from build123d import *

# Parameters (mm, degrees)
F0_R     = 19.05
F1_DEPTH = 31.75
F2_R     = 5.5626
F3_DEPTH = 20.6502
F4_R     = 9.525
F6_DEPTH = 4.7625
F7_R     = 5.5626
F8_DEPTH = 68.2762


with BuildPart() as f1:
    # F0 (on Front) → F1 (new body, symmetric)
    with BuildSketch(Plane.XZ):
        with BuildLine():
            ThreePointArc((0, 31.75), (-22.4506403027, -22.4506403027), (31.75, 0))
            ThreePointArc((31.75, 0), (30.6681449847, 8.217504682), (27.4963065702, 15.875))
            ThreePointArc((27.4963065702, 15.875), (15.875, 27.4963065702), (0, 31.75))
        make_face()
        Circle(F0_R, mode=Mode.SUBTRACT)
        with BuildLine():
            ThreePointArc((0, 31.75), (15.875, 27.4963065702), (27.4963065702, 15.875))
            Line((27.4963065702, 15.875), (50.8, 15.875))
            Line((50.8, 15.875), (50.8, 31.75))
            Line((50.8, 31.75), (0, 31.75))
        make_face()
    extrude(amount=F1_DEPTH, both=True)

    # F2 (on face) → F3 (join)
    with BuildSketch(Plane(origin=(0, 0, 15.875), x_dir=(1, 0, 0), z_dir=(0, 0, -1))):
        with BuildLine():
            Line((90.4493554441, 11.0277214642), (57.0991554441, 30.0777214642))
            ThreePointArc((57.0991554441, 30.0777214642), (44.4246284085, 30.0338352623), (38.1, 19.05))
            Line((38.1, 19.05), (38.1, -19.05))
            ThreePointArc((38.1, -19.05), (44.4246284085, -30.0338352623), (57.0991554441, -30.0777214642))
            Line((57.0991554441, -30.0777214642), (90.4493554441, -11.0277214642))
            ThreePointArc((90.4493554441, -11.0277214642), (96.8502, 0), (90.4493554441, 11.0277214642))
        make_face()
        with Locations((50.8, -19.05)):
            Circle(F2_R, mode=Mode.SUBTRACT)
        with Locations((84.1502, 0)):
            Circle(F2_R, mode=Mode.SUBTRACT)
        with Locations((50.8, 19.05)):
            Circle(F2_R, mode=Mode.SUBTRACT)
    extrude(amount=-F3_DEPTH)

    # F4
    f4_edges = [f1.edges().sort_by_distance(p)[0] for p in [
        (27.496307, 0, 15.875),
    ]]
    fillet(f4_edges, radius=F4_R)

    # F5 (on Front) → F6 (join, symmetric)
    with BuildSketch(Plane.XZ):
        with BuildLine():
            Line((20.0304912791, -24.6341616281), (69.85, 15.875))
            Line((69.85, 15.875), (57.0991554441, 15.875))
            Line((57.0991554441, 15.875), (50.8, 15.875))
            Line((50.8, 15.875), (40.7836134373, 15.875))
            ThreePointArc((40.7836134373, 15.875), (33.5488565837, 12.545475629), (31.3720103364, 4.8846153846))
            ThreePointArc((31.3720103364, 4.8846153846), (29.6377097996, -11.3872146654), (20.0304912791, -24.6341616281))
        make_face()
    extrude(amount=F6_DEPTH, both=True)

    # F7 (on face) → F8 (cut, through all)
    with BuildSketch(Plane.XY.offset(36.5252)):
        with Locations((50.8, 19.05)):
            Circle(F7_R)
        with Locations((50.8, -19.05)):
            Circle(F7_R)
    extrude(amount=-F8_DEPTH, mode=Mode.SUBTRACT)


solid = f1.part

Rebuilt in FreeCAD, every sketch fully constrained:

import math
import FreeCAD as App
import Part
import Sketcher

V = App.Vector
Q = App.Units.Quantity


def edges_at(feature, points):
    """Names of the edges that pass closest to the given points."""
    edges = feature.Shape.Edges
    near = lambda p: min(range(len(edges)), key=lambda i: edges[i].distToShape(Part.Vertex(*p))[0])
    return sorted({f"Edge{near(p) + 1}" for p in points})

doc = App.newDocument("Part")
body = doc.addObject("PartDesign::Body", "Body")

# Sketch on XZ plane
sketch1 = body.newObject("Sketcher::SketchObject", "Sketch")
sketch1.AttachmentSupport = (doc.getObject("XZ_Plane"), [""])
sketch1.MapMode = "FlatFace"
sketch1.addGeometry([
    Part.LineSegment(V(27, 16, 0), V(51, 16, 0)),  # 0
    Part.LineSegment(V(51, 16, 0), V(51, 32, 0)),  # 1
    Part.LineSegment(V(51, 32, 0), V(0, 32, 0)),  # 2
    Part.ArcOfCircle(Part.Circle(V(0, 0, 0), V(0, 0, 1), 32), math.radians(90), math.radians(390)),  # 3
    Part.Circle(V(0, 0, 0), V(0, 0, 1), 19),  # 4
], False)
sketch1.addConstraint([
    Sketcher.Constraint("Coincident", 0, 2, 1, 1),
    Sketcher.Constraint("Coincident", 1, 2, 2, 1),
    Sketcher.Constraint("Tangent", 2, 2, 3, 1),
    Sketcher.Constraint("Coincident", 3, 2, 0, 1),
    Sketcher.Constraint("Horizontal", 0),
    Sketcher.Constraint("Vertical", 1),
    Sketcher.Constraint("Horizontal", 2),
    Sketcher.Constraint("Coincident", 3, 3, -1, 1),
    Sketcher.Constraint("Coincident", 4, 3, -1, 1),
    Sketcher.Constraint("Diameter", 4, Q("1.5 in")),
    Sketcher.Constraint("DistanceX", 2, 2, 2, 1, Q("2 in")),
    Sketcher.Constraint("Radius", 3, Q("1.25 in")),
    Sketcher.Constraint("DistanceY", 1, 1, 1, 2, Q("0.625 in")),
])
pad1 = body.newObject("PartDesign::Pad", "Pad")
pad1.Profile = sketch1
pad1.Length = Q("2.5 in")
pad1.Midplane = True

# Sketch on XY plane
sketch2 = body.newObject("Sketcher::SketchObject", "Sketch001")
sketch2.AttachmentSupport = (doc.getObject("XY_Plane"), [""])
sketch2.MapMode = "FlatFace"
sketch2.AttachmentOffset = App.Placement(V(0, 0, 0.625 * 25.4), App.Rotation())
sketch2.addGeometry([
    Part.LineSegment(V(90, -11, 0), V(57, -30, 0)),  # 0
    Part.ArcOfCircle(Part.Circle(V(51, -19, 0), V(0, 0, 1), 13), math.radians(180), math.radians(300)),  # 1
    Part.LineSegment(V(38, -19, 0), V(38, 19, 0)),  # 2
    Part.ArcOfCircle(Part.Circle(V(51, 19, 0), V(0, 0, 1), 13), math.radians(60), math.radians(180)),  # 3
    Part.LineSegment(V(57, 30, 0), V(90, 11, 0)),  # 4
    Part.ArcOfCircle(Part.Circle(V(84, 0, 0), V(0, 0, 1), 13), math.radians(-60), math.radians(60)),  # 5
    Part.Circle(V(51, 19, 0), V(0, 0, 1), 6),  # 6
    Part.Circle(V(51, -19, 0), V(0, 0, 1), 6),  # 7
    Part.Circle(V(84, 0, 0), V(0, 0, 1), 6),  # 8
], False)
sketch2.addConstraint([
    Sketcher.Constraint("Tangent", 0, 2, 1, 2),
    Sketcher.Constraint("Tangent", 1, 1, 2, 1),
    Sketcher.Constraint("Tangent", 2, 2, 3, 2),
    Sketcher.Constraint("Tangent", 3, 1, 4, 1),
    Sketcher.Constraint("Tangent", 4, 2, 5, 2),
    Sketcher.Constraint("Tangent", 5, 1, 0, 1),
    Sketcher.Constraint("Vertical", 2),
    Sketcher.Constraint("Coincident", 6, 3, 3, 3),
    Sketcher.Constraint("Coincident", 7, 3, 1, 3),
    Sketcher.Constraint("Coincident", 8, 3, 5, 3),
    Sketcher.Constraint("Equal", 1, 3),
    Sketcher.Constraint("Equal", 3, 5),
    Sketcher.Constraint("Equal", 6, 7),
    Sketcher.Constraint("Equal", 7, 8),
    Sketcher.Constraint("Symmetric", 0, 2, 3, 1, -1),
    Sketcher.Constraint("Radius", 1, Q("0.5 in")),
    Sketcher.Constraint("Diameter", 6, Q("0.438 in")),
    Sketcher.Constraint("DistanceY", 2, 1, 2, 2, Q("1.5 in")),
    Sketcher.Constraint("DistanceX", -1, 1, 1, 3, Q("2 in")),
    Sketcher.Constraint("DistanceX", -1, 1, 5, 3, Q("3.313 in")),
])
pad2 = body.newObject("PartDesign::Pad", "Pad001")
pad2.Profile = sketch2
pad2.Length = Q("0.813 in")
doc.recompute()

fillet = body.newObject("PartDesign::Fillet", "Fillet")
fillet.Base = (pad2, edges_at(pad2, [(27.496, 0, 15.875)]))
fillet.Radius = Q("0.375 in")

# Sketch on XZ plane
sketch3 = body.newObject("Sketcher::SketchObject", "Sketch002")
sketch3.AttachmentSupport = (doc.getObject("XZ_Plane"), [""])
sketch3.MapMode = "FlatFace"
sketch3.addGeometry([
    Part.LineSegment(V(20, -25, 0), V(70, 16, 0)),
    Part.LineSegment(V(70, 16, 0), V(41, 16, 0)),
    Part.ArcOfCircle(Part.Circle(V(41, 6, 0), V(0, 0, 1), 10), math.radians(90), math.radians(189)),
    Part.ArcOfCircle(Part.Circle(V(0, 0, 0), V(0, 0, 1), 32), math.radians(-51), math.radians(9)),
], False)
sketch3.addConstraint([
    Sketcher.Constraint("Coincident", 0, 2, 1, 1),
    Sketcher.Constraint("Tangent", 1, 2, 2, 1),
    Sketcher.Constraint("Tangent", 2, 2, 3, 2),
    Sketcher.Constraint("Tangent", 3, 1, 0, 1),
    Sketcher.Constraint("Horizontal", 1),
    Sketcher.Constraint("Coincident", 3, 3, -1, 1),
    Sketcher.Constraint("Radius", 3, Q("1.25 in")),
    Sketcher.Constraint("Radius", 2, Q("0.375 in")),
    Sketcher.Constraint("DistanceY", -1, 1, 2, 3, Q("0.25 in")),
    Sketcher.Constraint("DistanceX", -1, 1, 0, 2, Q("2.75 in")),
])
pad3 = body.newObject("PartDesign::Pad", "Pad002")
pad3.Profile = sketch3
pad3.Length = Q("0.375 in")
pad3.Midplane = True

# Sketch on XY plane
sketch4 = body.newObject("Sketcher::SketchObject", "Sketch003")
sketch4.AttachmentSupport = (doc.getObject("XY_Plane"), [""])
sketch4.MapMode = "FlatFace"
sketch4.AttachmentOffset = App.Placement(V(0, 0, 1.438 * 25.4), App.Rotation())
sketch4.addGeometry([
    Part.Circle(V(51, 19, 0), V(0, 0, 1), 6),
    Part.Circle(V(51, -19, 0), V(0, 0, 1), 6),
], False)
sketch4.addConstraint([
    Sketcher.Constraint("Equal", 0, 1),
    Sketcher.Constraint("Symmetric", 0, 3, 1, 3, -1),
    Sketcher.Constraint("Diameter", 0, Q("0.438 in")),
    Sketcher.Constraint("DistanceX", -1, 1, 0, 3, Q("2 in")),
    Sketcher.Constraint("DistanceY", 1, 3, 0, 3, Q("1.5 in")),
])
pocket1 = body.newObject("PartDesign::Pocket", "Pocket")
pocket1.Profile = sketch4
pocket1.Type = "ThroughAll"

doc.recompute()
